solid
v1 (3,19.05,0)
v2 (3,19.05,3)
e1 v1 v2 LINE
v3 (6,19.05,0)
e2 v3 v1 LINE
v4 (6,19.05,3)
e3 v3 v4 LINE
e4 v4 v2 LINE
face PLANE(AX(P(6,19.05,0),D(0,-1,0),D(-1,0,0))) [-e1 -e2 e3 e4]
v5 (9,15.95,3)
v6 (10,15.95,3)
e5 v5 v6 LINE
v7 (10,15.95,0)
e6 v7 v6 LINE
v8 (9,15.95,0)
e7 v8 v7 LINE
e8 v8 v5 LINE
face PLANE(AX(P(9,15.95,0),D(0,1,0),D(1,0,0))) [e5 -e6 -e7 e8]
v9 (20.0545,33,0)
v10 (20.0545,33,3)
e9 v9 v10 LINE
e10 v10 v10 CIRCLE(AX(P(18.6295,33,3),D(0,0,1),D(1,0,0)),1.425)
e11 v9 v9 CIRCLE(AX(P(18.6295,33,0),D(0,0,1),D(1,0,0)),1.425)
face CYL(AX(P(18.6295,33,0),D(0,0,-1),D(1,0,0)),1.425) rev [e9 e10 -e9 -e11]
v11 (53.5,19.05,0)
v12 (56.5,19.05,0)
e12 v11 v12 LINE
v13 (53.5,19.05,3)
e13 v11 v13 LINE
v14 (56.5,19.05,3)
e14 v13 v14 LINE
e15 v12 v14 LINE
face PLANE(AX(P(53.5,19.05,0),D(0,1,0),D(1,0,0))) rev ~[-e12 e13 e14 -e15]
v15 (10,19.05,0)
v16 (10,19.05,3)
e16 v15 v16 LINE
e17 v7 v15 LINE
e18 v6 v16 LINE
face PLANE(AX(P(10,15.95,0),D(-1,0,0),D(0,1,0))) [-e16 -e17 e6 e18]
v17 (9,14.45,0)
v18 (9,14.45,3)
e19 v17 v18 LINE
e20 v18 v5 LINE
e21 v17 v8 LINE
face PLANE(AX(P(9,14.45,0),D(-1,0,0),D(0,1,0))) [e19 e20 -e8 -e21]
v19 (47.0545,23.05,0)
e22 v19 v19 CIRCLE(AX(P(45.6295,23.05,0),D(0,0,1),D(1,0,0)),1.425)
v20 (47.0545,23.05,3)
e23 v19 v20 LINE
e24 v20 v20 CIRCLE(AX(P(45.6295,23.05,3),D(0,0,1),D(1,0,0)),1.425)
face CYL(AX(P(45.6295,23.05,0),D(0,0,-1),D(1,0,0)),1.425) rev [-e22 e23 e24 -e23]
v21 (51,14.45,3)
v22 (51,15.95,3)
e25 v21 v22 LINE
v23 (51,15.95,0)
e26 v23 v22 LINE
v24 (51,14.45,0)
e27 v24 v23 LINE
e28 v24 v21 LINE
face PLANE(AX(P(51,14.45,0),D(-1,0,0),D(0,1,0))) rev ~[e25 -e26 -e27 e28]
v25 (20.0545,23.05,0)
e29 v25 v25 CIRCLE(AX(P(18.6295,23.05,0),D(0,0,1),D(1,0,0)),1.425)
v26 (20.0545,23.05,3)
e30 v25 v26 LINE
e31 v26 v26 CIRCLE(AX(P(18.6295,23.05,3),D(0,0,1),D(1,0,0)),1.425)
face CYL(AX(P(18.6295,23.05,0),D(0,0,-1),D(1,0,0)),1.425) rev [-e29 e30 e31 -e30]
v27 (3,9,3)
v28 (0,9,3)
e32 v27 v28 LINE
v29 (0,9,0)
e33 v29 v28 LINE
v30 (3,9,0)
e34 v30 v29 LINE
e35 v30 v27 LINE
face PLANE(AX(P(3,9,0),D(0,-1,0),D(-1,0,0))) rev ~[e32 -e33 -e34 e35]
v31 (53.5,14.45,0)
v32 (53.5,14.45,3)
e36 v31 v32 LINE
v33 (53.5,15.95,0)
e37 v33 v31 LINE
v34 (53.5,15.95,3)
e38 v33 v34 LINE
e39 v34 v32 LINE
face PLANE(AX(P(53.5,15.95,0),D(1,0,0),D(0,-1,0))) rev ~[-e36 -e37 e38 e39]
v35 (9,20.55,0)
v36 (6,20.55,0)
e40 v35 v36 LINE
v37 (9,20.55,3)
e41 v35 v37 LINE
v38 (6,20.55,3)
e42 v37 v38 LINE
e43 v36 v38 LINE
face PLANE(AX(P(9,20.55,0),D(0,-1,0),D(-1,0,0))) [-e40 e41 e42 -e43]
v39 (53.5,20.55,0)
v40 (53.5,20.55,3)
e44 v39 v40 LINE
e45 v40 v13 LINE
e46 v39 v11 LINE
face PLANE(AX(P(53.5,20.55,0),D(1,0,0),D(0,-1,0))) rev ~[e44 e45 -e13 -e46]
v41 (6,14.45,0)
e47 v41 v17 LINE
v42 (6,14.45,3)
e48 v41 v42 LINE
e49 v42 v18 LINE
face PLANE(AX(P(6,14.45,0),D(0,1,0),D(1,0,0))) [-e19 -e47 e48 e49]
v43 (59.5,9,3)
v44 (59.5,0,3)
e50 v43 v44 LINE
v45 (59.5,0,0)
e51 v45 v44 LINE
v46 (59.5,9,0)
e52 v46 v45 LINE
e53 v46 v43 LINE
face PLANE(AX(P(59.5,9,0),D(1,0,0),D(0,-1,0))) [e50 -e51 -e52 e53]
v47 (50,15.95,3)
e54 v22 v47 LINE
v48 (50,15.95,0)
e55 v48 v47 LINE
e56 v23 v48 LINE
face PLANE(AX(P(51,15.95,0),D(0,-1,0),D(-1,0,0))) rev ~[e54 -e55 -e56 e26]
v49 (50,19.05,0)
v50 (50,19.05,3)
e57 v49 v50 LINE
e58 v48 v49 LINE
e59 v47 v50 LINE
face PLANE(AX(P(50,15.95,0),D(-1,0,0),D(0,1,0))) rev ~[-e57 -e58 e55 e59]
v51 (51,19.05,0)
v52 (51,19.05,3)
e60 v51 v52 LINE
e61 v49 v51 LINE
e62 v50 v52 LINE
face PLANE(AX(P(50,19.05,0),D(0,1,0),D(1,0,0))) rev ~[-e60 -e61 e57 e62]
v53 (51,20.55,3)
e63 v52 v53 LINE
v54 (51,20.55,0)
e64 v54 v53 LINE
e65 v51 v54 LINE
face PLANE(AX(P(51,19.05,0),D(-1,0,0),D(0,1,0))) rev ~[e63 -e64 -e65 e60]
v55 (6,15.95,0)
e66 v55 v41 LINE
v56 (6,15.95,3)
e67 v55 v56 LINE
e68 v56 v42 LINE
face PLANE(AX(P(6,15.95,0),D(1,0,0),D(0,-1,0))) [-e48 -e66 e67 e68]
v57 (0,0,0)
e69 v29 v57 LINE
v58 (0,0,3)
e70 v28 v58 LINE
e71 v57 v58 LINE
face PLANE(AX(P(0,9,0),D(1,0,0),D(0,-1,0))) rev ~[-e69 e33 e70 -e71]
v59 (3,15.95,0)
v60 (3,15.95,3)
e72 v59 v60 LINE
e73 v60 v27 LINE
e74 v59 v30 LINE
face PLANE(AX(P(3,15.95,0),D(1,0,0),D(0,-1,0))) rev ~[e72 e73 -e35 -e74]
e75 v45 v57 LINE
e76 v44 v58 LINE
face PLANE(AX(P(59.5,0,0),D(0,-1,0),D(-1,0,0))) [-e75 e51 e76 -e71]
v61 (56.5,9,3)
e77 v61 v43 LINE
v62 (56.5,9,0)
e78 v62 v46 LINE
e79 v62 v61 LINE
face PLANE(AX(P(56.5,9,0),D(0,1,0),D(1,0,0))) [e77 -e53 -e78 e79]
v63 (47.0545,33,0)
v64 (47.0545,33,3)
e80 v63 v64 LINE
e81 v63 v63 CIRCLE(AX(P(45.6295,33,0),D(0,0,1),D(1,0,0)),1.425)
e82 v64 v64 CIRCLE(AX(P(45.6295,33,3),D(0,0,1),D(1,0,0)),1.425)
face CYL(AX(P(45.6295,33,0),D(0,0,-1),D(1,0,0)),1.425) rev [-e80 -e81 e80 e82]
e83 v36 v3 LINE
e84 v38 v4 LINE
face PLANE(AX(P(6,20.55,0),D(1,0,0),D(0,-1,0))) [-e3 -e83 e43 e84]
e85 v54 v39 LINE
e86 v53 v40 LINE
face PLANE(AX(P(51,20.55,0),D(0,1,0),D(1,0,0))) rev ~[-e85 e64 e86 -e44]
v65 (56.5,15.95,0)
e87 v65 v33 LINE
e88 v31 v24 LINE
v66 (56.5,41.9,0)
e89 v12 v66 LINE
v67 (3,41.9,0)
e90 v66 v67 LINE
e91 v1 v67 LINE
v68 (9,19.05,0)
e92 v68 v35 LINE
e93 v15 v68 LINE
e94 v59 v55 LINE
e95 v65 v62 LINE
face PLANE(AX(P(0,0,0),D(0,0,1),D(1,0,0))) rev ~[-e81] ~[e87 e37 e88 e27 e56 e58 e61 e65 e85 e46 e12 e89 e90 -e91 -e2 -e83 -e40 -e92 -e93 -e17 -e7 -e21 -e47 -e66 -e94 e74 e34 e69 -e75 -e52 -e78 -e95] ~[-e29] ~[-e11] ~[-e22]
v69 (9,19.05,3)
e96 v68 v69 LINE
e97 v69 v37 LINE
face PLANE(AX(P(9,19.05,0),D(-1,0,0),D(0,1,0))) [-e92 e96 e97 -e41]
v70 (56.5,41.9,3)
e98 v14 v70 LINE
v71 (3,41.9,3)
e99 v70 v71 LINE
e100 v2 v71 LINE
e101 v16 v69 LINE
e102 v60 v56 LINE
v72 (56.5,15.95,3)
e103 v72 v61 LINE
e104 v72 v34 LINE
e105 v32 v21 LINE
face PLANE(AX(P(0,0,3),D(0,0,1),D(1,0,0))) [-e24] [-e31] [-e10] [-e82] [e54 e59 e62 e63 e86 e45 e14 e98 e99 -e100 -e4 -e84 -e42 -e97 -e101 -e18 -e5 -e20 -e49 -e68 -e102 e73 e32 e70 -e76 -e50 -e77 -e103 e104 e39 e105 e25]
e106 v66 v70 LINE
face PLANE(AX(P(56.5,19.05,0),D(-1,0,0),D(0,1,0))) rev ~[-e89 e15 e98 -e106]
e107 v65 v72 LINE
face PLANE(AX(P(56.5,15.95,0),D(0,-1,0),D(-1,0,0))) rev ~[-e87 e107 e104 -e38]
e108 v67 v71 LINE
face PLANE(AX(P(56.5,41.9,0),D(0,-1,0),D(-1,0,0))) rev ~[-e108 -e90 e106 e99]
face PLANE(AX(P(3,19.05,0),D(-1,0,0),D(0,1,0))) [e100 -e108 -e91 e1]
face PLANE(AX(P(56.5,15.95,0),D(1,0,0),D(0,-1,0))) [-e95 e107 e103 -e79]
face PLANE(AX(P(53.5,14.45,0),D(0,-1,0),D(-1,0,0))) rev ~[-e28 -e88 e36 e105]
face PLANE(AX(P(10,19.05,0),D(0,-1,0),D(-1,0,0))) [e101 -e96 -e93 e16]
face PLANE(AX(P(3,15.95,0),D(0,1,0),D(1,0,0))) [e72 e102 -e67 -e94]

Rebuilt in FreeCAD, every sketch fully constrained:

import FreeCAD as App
import Part
import Sketcher
from FreeCAD import Vector

doc = App.newDocument("Part")
body = doc.addObject("PartDesign::Body", "Body")

sketch1 = body.newObject("Sketcher::SketchObject", "Sketch")
sketch1.AttachmentSupport = (doc.getObject("XY_Plane"), [""])
sketch1.MapMode = "FlatFace"
sketch1.addGeometry(Part.LineSegment(Vector(51, 15.9, 0), Vector(50, 15.9, 0)), False)
sketch1.addGeometry(Part.LineSegment(Vector(50, 15.9, 0), Vector(50, 19.1, 0)), False)
sketch1.addGeometry(Part.LineSegment(Vector(50, 19.1, 0), Vector(51, 19.1, 0)), False)
sketch1.addGeometry(Part.LineSegment(Vector(51, 19.1, 0), Vector(51, 20.6, 0)), False)
sketch1.addGeometry(Part.LineSegment(Vector(51, 20.6, 0), Vector(53.5, 20.6, 0)), False)
sketch1.addGeometry(Part.LineSegment(Vector(53.5, 20.6, 0), Vector(53.5, 19.1, 0)), False)
sketch1.addGeometry(Part.LineSegment(Vector(53.5, 19.1, 0), Vector(56.5, 19.1, 0)), False)
sketch1.addGeometry(Part.LineSegment(Vector(56.5, 19.1, 0), Vector(56.5, 41.9, 0)), False)
sketch1.addGeometry(Part.LineSegment(Vector(56.5, 41.9, 0), Vector(3, 41.9, 0)), False)
sketch1.addGeometry(Part.LineSegment(Vector(3, 41.9, 0), Vector(3, 19.1, 0)), False)
sketch1.addGeometry(Part.LineSegment(Vector(3, 19.1, 0), Vector(6, 19.1, 0)), False)
sketch1.addGeometry(Part.LineSegment(Vector(6, 19.1, 0), Vector(6, 20.6, 0)), False)
sketch1.addGeometry(Part.LineSegment(Vector(6, 20.6, 0), Vector(9, 20.6, 0)), False)
sketch1.addGeometry(Part.LineSegment(Vector(9, 20.6, 0), Vector(9, 19.1, 0)), False)
sketch1.addGeometry(Part.LineSegment(Vector(9, 19.1, 0), Vector(10, 19.1, 0)), False)
sketch1.addGeometry(Part.LineSegment(Vector(10, 19.1, 0), Vector(10, 15.9, 0)), False)
sketch1.addGeometry(Part.LineSegment(Vector(10, 15.9, 0), Vector(9, 15.9, 0)), False)
sketch1.addGeometry(Part.LineSegment(Vector(9, 15.9, 0), Vector(9, 14.4, 0)), False)
sketch1.addGeometry(Part.LineSegment(Vector(9, 14.4, 0), Vector(6, 14.4, 0)), False)
sketch1.addGeometry(Part.LineSegment(Vector(6, 14.4, 0), Vector(6, 15.9, 0)), False)
sketch1.addGeometry(Part.LineSegment(Vector(6, 15.9, 0), Vector(3, 15.9, 0)), False)
sketch1.addGeometry(Part.LineSegment(Vector(3, 15.9, 0), Vector(3, 9, 0)), False)
sketch1.addGeometry(Part.LineSegment(Vector(3, 9, 0), Vector(0, 9, 0)), False)
sketch1.addGeometry(Part.LineSegment(Vector(0, 9, 0), Vector(0, 0, 0)), False)
sketch1.addGeometry(Part.LineSegment(Vector(0, 0, 0), Vector(59.5, 0, 0)), False)
sketch1.addGeometry(Part.LineSegment(Vector(59.5, 0, 0), Vector(59.5, 9, 0)), False)
sketch1.addGeometry(Part.LineSegment(Vector(59.5, 9, 0), Vector(56.5, 9, 0)), False)
sketch1.addGeometry(Part.LineSegment(Vector(56.5, 9, 0), Vector(56.5, 15.9, 0)), False)
sketch1.addGeometry(Part.LineSegment(Vector(56.5, 15.9, 0), Vector(53.5, 15.9, 0)), False)
sketch1.addGeometry(Part.LineSegment(Vector(53.5, 15.9, 0), Vector(53.5, 14.4, 0)), False)
sketch1.addGeometry(Part.LineSegment(Vector(53.5, 14.4, 0), Vector(51, 14.4, 0)), False)
sketch1.addGeometry(Part.LineSegment(Vector(51, 14.4, 0), Vector(51, 15.9, 0)), False)
sketch1.addGeometry(Part.Circle(Vector(18.6, 23.1, 0), Vector(0, 0, 1), 1.4), False)
sketch1.addGeometry(Part.Circle(Vector(18.6, 33, 0), Vector(0, 0, 1), 1.4), False)
sketch1.addGeometry(Part.Circle(Vector(45.6, 23.1, 0), Vector(0, 0, 1), 1.4), False)
sketch1.addGeometry(Part.Circle(Vector(45.6, 33, 0), Vector(0, 0, 1), 1.4), False)
sketch1.addConstraint(Sketcher.Constraint("Coincident", 0, 2, 1, 1))
sketch1.addConstraint(Sketcher.Constraint("Coincident", 1, 2, 2, 1))
sketch1.addConstraint(Sketcher.Constraint("Coincident", 2, 2, 3, 1))
sketch1.addConstraint(Sketcher.Constraint("Coincident", 3, 2, 4, 1))
sketch1.addConstraint(Sketcher.Constraint("Coincident", 4, 2, 5, 1))
sketch1.addConstraint(Sketcher.Constraint("Coincident", 5, 2, 6, 1))
sketch1.addConstraint(Sketcher.Constraint("Coincident", 6, 2, 7, 1))
sketch1.addConstraint(Sketcher.Constraint("Coincident", 7, 2, 8, 1))
sketch1.addConstraint(Sketcher.Constraint("Coincident", 8, 2, 9, 1))
sketch1.addConstraint(Sketcher.Constraint("Coincident", 9, 2, 10, 1))
sketch1.addConstraint(Sketcher.Constraint("Coincident", 10, 2, 11, 1))
sketch1.addConstraint(Sketcher.Constraint("Coincident", 11, 2, 12, 1))
sketch1.addConstraint(Sketcher.Constraint("Coincident", 12, 2, 13, 1))
sketch1.addConstraint(Sketcher.Constraint("Coincident", 13, 2, 14, 1))
sketch1.addConstraint(Sketcher.Constraint("Coincident", 14, 2, 15, 1))
sketch1.addConstraint(Sketcher.Constraint("Coincident", 15, 2, 16, 1))
sketch1.addConstraint(Sketcher.Constraint("Coincident", 16, 2, 17, 1))
sketch1.addConstraint(Sketcher.Constraint("Coincident", 17, 2, 18, 1))
sketch1.addConstraint(Sketcher.Constraint("Coincident", 18, 2, 19, 1))
sketch1.addConstraint(Sketcher.Constraint("Coincident", 19, 2, 20, 1))
sketch1.addConstraint(Sketcher.Constraint("Coincident", 20, 2, 21, 1))
sketch1.addConstraint(Sketcher.Constraint("Coincident", 21, 2, 22, 1))
sketch1.addConstraint(Sketcher.Constraint("Coincident", 22, 2, 23, 1))
sketch1.addConstraint(Sketcher.Constraint("Coincident", 23, 2, 24, 1))
sketch1.addConstraint(Sketcher.Constraint("Coincident", 24, 2, 25, 1))
sketch1.addConstraint(Sketcher.Constraint("Coincident", 25, 2, 26, 1))
sketch1.addConstraint(Sketcher.Constraint("Coincident", 26, 2, 27, 1))
sketch1.addConstraint(Sketcher.Constraint("Coincident", 27, 2, 28, 1))
sketch1.addConstraint(Sketcher.Constraint("Coincident", 28, 2, 29, 1))
sketch1.addConstraint(Sketcher.Constraint("Coincident", 29, 2, 30, 1))
sketch1.addConstraint(Sketcher.Constraint("Coincident", 30, 2, 31, 1))
sketch1.addConstraint(Sketcher.Constraint("Coincident", 31, 2, 0, 1))
sketch1.addConstraint(Sketcher.Constraint("Horizontal", 0))
sketch1.addConstraint(Sketcher.Constraint("Vertical", 1))
sketch1.addConstraint(Sketcher.Constraint("Horizontal", 2))
sketch1.addConstraint(Sketcher.Constraint("Vertical", 3))
sketch1.addConstraint(Sketcher.Constraint("Horizontal", 4))
sketch1.addConstraint(Sketcher.Constraint("Vertical", 5))
sketch1.addConstraint(Sketcher.Constraint("Horizontal", 6))
sketch1.addConstraint(Sketcher.Constraint("Vertical", 7))
sketch1.addConstraint(Sketcher.Constraint("Horizontal", 8))
sketch1.addConstraint(Sketcher.Constraint("Vertical", 9))
sketch1.addConstraint(Sketcher.Constraint("Horizontal", 10))
sketch1.addConstraint(Sketcher.Constraint("Vertical", 11))
sketch1.addConstraint(Sketcher.Constraint("Horizontal", 12))
sketch1.addConstraint(Sketcher.Constraint("Vertical", 13))
sketch1.addConstraint(Sketcher.Constraint("Horizontal", 14))
sketch1.addConstraint(Sketcher.Constraint("Vertical", 15))
sketch1.addConstraint(Sketcher.Constraint("Horizontal", 16))
sketch1.addConstraint(Sketcher.Constraint("Vertical", 17))
sketch1.addConstraint(Sketcher.Constraint("Horizontal", 18))
sketch1.addConstraint(Sketcher.Constraint("Vertical", 19))
sketch1.addConstraint(Sketcher.Constraint("Horizontal", 20))
sketch1.addConstraint(Sketcher.Constraint("Vertical", 21))
sketch1.addConstraint(Sketcher.Constraint("Horizontal", 22))
sketch1.addConstraint(Sketcher.Constraint("Vertical", 23))
sketch1.addConstraint(Sketcher.Constraint("Horizontal", 24))
sketch1.addConstraint(Sketcher.Constraint("Vertical", 25))
sketch1.addConstraint(Sketcher.Constraint("Horizontal", 26))
sketch1.addConstraint(Sketcher.Constraint("Vertical", 27))
sketch1.addConstraint(Sketcher.Constraint("Horizontal", 28))
sketch1.addConstraint(Sketcher.Constraint("Vertical", 29))
sketch1.addConstraint(Sketcher.Constraint("Horizontal", 30))
sketch1.addConstraint(Sketcher.Constraint("Vertical", 31))
sketch1.addConstraint(Sketcher.Constraint("Coincident", 23, 2, -1, 1))
sketch1.addConstraint(Sketcher.Constraint("Equal", 32, 33))
sketch1.addConstraint(Sketcher.Constraint("Equal", 33, 34))
sketch1.addConstraint(Sketcher.Constraint("Equal", 34, 35))
sketch1.addConstraint(Sketcher.Constraint("Horizontal", 32, 3, 34, 3))
sketch1.addConstraint(Sketcher.Constraint("Horizontal", 33, 3, 35, 3))
sketch1.addConstraint(Sketcher.Constraint("Horizontal", 2, 2, 5, 2))
sketch1.addConstraint(Sketcher.Constraint("Horizontal", 6, 2, 9, 2))
sketch1.addConstraint(Sketcher.Constraint("Horizontal", 4, 2, 11, 2))
sketch1.addConstraint(Sketcher.Constraint("Horizontal", 10, 2, 13, 2))
sketch1.addConstraint(Sketcher.Constraint("Horizontal", 0, 2, 15, 2))
sketch1.addConstraint(Sketcher.Constraint("Horizontal", 16, 2, 19, 2))
sketch1.addConstraint(Sketcher.Constraint("Horizontal", 22, 2, 25, 2))
sketch1.addConstraint(Sketcher.Constraint("Horizontal", 20, 2, 27, 2))
sketch1.addConstraint(Sketcher.Constraint("Horizontal", 18, 2, 29, 2))
sketch1.addConstraint(Sketcher.Constraint("Vertical", 32, 3, 33, 3))
sketch1.addConstraint(Sketcher.Constraint("Vertical", 34, 3, 35, 3))
sketch1.addConstraint(Sketcher.Constraint("Vertical", 13, 2, 16, 2))
sketch1.addConstraint(Sketcher.Constraint("Vertical", 11, 2, 18, 2))
sketch1.addConstraint(Sketcher.Constraint("Vertical", 9, 2, 20, 2))
sketch1.addConstraint(Sketcher.Constraint("Vertical", 7, 2, 26, 2))
sketch1.addConstraint(Sketcher.Constraint("Vertical", 5, 2, 28, 2))
sketch1.addConstraint(Sketcher.Constraint("Vertical", 3, 2, 30, 2))
sketch1.addConstraint(Sketcher.Constraint("Equal", 6, 10))
sketch1.addConstraint(Sketcher.Constraint("Equal", 10, 12))
sketch1.addConstraint(Sketcher.Constraint("Equal", 2, 14))
sketch1.addConstraint(Sketcher.Constraint("Equal", 20, 22))
sketch1.addConstraint(Sketcher.Constraint("Equal", 22, 26))
sketch1.addConstraint(Sketcher.Constraint("Equal", 13, 17))
sketch1.addConstraint(Sketcher.Constraint("DistanceX", 0, 2, 0, 1, 1.0))
sketch1.addConstraint(Sketcher.Constraint("DistanceX", 6, 1, 6, 2, 3.0))
sketch1.addConstraint(Sketcher.Constraint("DistanceY", 23, 2, 23, 1, 9.0))
sketch1.addConstraint(Sketcher.Constraint("DistanceX", 4, 1, 4, 2, 2.5))
sketch1.addConstraint(Sketcher.Constraint("DistanceX", 8, 2, 8, 1, 53.5))
sketch1.addConstraint(Sketcher.Constraint("DistanceY", 1, 1, 1, 2, 3.1))
sketch1.addConstraint(Sketcher.Constraint("DistanceY", 3, 1, 3, 2, 1.5))
sketch1.addConstraint(Sketcher.Constraint("DistanceX", 32, 3, 34, 3, 27.0))
sketch1.addConstraint(Sketcher.Constraint("DistanceY", 21, 2, 21, 1, 6.95))
sketch1.addConstraint(Sketcher.Constraint("DistanceY", 3, 2, 34, 3, 2.5))
sketch1.addConstraint(Sketcher.Constraint("Diameter", 32, 2.85))
sketch1.addConstraint(Sketcher.Constraint("DistanceY", 32, 3, 33, 3, 9.95))
sketch1.addConstraint(Sketcher.Constraint("DistanceY", 7, 1, 7, 2, 22.85))
sketch1.addConstraint(Sketcher.Constraint("DistanceX", -1, 1, 32, 3, 18.6295))
pad1 = body.newObject("PartDesign::Pad", "Pad")
pad1.Profile = sketch1
pad1.Length = 3

doc.recompute()
